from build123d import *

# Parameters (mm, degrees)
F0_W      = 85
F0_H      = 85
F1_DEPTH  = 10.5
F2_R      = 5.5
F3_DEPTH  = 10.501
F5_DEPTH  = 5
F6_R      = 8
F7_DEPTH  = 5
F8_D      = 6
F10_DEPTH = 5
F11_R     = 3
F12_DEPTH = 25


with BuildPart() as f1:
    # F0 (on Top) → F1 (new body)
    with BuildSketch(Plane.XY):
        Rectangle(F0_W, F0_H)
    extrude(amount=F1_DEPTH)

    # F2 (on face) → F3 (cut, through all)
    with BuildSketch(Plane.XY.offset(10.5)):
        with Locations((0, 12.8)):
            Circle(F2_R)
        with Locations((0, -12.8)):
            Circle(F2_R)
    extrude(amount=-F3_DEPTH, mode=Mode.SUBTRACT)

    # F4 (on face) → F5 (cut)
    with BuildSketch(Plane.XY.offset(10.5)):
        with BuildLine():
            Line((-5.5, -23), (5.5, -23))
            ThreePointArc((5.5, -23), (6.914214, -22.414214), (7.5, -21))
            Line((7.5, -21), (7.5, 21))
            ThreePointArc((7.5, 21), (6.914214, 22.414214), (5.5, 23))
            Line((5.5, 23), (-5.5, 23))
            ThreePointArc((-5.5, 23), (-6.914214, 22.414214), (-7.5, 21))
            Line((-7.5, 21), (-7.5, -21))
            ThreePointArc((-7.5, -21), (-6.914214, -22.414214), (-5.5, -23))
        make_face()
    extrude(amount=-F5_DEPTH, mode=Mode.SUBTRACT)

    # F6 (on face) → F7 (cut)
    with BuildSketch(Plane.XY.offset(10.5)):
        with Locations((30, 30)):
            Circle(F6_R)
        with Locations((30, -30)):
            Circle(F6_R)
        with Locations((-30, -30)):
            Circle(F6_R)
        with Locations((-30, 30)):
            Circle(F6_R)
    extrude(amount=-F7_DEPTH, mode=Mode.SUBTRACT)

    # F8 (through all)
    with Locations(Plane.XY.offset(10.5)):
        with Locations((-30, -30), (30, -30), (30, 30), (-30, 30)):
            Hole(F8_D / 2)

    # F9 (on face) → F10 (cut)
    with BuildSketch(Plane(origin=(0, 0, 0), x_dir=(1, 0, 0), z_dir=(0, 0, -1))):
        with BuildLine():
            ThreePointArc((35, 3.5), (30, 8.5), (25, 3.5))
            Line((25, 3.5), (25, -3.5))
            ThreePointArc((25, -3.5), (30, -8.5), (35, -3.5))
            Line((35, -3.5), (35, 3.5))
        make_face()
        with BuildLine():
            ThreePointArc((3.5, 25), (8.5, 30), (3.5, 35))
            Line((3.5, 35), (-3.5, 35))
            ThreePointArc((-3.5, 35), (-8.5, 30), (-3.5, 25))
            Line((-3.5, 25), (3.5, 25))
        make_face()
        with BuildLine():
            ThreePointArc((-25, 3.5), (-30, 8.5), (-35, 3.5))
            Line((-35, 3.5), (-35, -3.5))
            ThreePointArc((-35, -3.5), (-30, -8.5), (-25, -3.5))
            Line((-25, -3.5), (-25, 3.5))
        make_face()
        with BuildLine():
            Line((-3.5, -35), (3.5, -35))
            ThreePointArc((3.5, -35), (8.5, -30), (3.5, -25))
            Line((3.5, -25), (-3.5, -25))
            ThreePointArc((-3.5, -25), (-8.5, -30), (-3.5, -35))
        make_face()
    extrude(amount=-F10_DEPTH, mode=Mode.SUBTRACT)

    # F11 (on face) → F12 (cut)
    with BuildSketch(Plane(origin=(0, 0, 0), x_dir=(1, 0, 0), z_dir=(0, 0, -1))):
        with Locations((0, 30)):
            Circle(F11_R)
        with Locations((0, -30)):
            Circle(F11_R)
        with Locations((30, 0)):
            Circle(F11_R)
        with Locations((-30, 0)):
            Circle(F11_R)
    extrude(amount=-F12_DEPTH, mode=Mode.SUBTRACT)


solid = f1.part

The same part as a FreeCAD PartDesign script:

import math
import FreeCAD as App
import Part
import Sketcher

V = App.Vector

doc = App.newDocument("Part")
body = doc.addObject("PartDesign::Body", "Body")

sketch1 = doc.addObject("Sketcher::SketchObject", "Sketch")
body.addObject(sketch1)
sketch1.AttachmentSupport = (doc.XY_Plane, [""])
sketch1.MapMode = "FlatFace"
sketch1.addGeometry(Part.LineSegment(V(-42.5, 42.5, 0), V(-42.5, -42.5, 0)), False)
sketch1.addGeometry(Part.LineSegment(V(-42.5, -42.5, 0), V(42.5, -42.5, 0)), False)
sketch1.addGeometry(Part.LineSegment(V(42.5, -42.5, 0), V(42.5, 42.5, 0)), False)
sketch1.addGeometry(Part.LineSegment(V(42.5, 42.5, 0), V(-42.5, 42.5, 0)), False)
sketch1.addConstraint(Sketcher.Constraint("Coincident", 0, 2, 1, 1))
sketch1.addConstraint(Sketcher.Constraint("Coincident", 1, 2, 2, 1))
sketch1.addConstraint(Sketcher.Constraint("Coincident", 2, 2, 3, 1))
sketch1.addConstraint(Sketcher.Constraint("Coincident", 3, 2, 0, 1))
sketch1.addConstraint(Sketcher.Constraint("Vertical", 0))
sketch1.addConstraint(Sketcher.Constraint("Horizontal", 1))
sketch1.addConstraint(Sketcher.Constraint("Vertical", 2))
sketch1.addConstraint(Sketcher.Constraint("Horizontal", 3))
sketch1.addConstraint(Sketcher.Constraint("Symmetric", 0, 2, 2, 2, -1, 1))
sketch1.addConstraint(Sketcher.Constraint("Equal", 3, 0))
sketch1.addConstraint(Sketcher.Constraint("DistanceX", 1, 1, 1, 2, 85.0))
pad1 = doc.addObject("PartDesign::Pad", "Pad")
body.addObject(pad1)
pad1.Profile = sketch1
pad1.Length = 10.5

sketch2 = doc.addObject("Sketcher::SketchObject", "Sketch001")
body.addObject(sketch2)
sketch2.AttachmentSupport = (doc.XY_Plane, [""])
sketch2.MapMode = "FlatFace"
sketch2.AttachmentOffset = App.Placement(V(0, 0, 10.5), App.Rotation())
sketch2.addGeometry(Part.Circle(V(0, 12.8, 0), V(0, 0, 1), 5.5), False)
sketch2.addGeometry(Part.Circle(V(0, -12.8, 0), V(0, 0, 1), 5.5), False)
sketch2.addConstraint(Sketcher.Constraint("Equal", 0, 1))
sketch2.addConstraint(Sketcher.Constraint("Symmetric", 0, 3, 1, 3, -1, 1))
sketch2.addConstraint(Sketcher.Constraint("PointOnObject", 0, 3, -2))
sketch2.addConstraint(Sketcher.Constraint("Diameter", 0, 11.0))
sketch2.addConstraint(Sketcher.Constraint("DistanceY", -1, 1, 0, 3, 12.8))
pocket1 = doc.addObject("PartDesign::Pocket", "Pocket")
body.addObject(pocket1)
pocket1.Profile = sketch2
pocket1.Type = "ThroughAll"

sketch3 = doc.addObject("Sketcher::SketchObject", "Sketch002")
body.addObject(sketch3)
sketch3.AttachmentSupport = (doc.XY_Plane, [""])
sketch3.MapMode = "FlatFace"
sketch3.AttachmentOffset = App.Placement(V(0, 0, 10.5), App.Rotation())
sketch3.addGeometry(Part.LineSegment(V(-5.5, -23, 0), V(5.5, -23, 0)), False)
sketch3.addGeometry(Part.ArcOfCircle(Part.Circle(V(5.500001, -21.000001, 0), V(0, 0, 1), 1.999999), math.radians(-90.000043), math.radians(0.000043)), False)
sketch3.addGeometry(Part.LineSegment(V(7.5, -21, 0), V(7.5, 21, 0)), False)
sketch3.addGeometry(Part.ArcOfCircle(Part.Circle(V(5.500001, 21.000001, 0), V(0, 0, 1), 1.999999), math.radians(-0.000043), math.radians(90.000043)), False)
sketch3.addGeometry(Part.LineSegment(V(5.5, 23, 0), V(-5.5, 23, 0)), False)
sketch3.addGeometry(Part.ArcOfCircle(Part.Circle(V(-5.500001, 21.000001, 0), V(0, 0, 1), 1.999999), math.radians(89.999957), math.radians(180.000043)), False)
sketch3.addGeometry(Part.LineSegment(V(-7.5, 21, 0), V(-7.5, -21, 0)), False)
sketch3.addGeometry(Part.ArcOfCircle(Part.Circle(V(-5.500001, -21.000001, 0), V(0, 0, 1), 1.999999), math.radians(179.999957), math.radians(270.000043)), False)
sketch3.addConstraint(Sketcher.Constraint("Tangent", 0, 2, 1, 1))
sketch3.addConstraint(Sketcher.Constraint("Tangent", 1, 2, 2, 1))
sketch3.addConstraint(Sketcher.Constraint("Tangent", 2, 2, 3, 1))
sketch3.addConstraint(Sketcher.Constraint("Tangent", 3, 2, 4, 1))
sketch3.addConstraint(Sketcher.Constraint("Tangent", 4, 2, 5, 1))
sketch3.addConstraint(Sketcher.Constraint("Tangent", 5, 2, 6, 1))
sketch3.addConstraint(Sketcher.Constraint("Tangent", 6, 2, 7, 1))
sketch3.addConstraint(Sketcher.Constraint("Tangent", 7, 2, 0, 1))
sketch3.addConstraint(Sketcher.Constraint("Horizontal", 0))
sketch3.addConstraint(Sketcher.Constraint("Vertical", 2))
sketch3.addConstraint(Sketcher.Constraint("Horizontal", 4))
sketch3.addConstraint(Sketcher.Constraint("Vertical", 6))
sketch3.addConstraint(Sketcher.Constraint("Equal", 1, 3))
sketch3.addConstraint(Sketcher.Constraint("Equal", 3, 5))
sketch3.addConstraint(Sketcher.Constraint("Equal", 5, 7))
sketch3.addConstraint(Sketcher.Constraint("Symmetric", 1, 3, 5, 3, -1, 1))
sketch3.addConstraint(Sketcher.Constraint("Radius", 1, 1.999999))
sketch3.addConstraint(Sketcher.Constraint("DistanceX", 0, 1, 0, 2, 11.0))
sketch3.addConstraint(Sketcher.Constraint("DistanceY", 2, 1, 2, 2, 42.0))
pocket2 = doc.addObject("PartDesign::Pocket", "Pocket001")
body.addObject(pocket2)
pocket2.Profile = sketch3
pocket2.Length = 5

sketch4 = doc.addObject("Sketcher::SketchObject", "Sketch003")
body.addObject(sketch4)
sketch4.AttachmentSupport = (doc.XY_Plane, [""])
sketch4.MapMode = "FlatFace"
sketch4.AttachmentOffset = App.Placement(V(0, 0, 10.5), App.Rotation())
sketch4.addGeometry(Part.Circle(V(30, 30, 0), V(0, 0, 1), 8), False)
sketch4.addGeometry(Part.Circle(V(30, -30, 0), V(0, 0, 1), 8), False)
sketch4.addGeometry(Part.Circle(V(-30, -30, 0), V(0, 0, 1), 8), False)
sketch4.addGeometry(Part.Circle(V(-30, 30, 0), V(0, 0, 1), 8), False)
sketch4.addConstraint(Sketcher.Constraint("Equal", 0, 1))
sketch4.addConstraint(Sketcher.Constraint("Equal", 1, 2))
sketch4.addConstraint(Sketcher.Constraint("Equal", 2, 3))
sketch4.addConstraint(Sketcher.Constraint("Symmetric", 0, 3, 2, 3, -1, 1))
sketch4.addConstraint(Sketcher.Constraint("Symmetric", 1, 3, 3, 3, -1, 1))
sketch4.addConstraint(Sketcher.Constraint("Symmetric", 1, 3, 2, 3, -2))
sketch4.addConstraint(Sketcher.Constraint("Diameter", 0, 16.0))
sketch4.addConstraint(Sketcher.Constraint("DistanceX", -1, 1, 0, 3, 30.0))
sketch4.addConstraint(Sketcher.Constraint("DistanceY", -1, 1, 0, 3, 30.0))
pocket3 = doc.addObject("PartDesign::Pocket", "Pocket002")
body.addObject(pocket3)
pocket3.Profile = sketch4
pocket3.Length = 5

sketch5 = doc.addObject("Sketcher::SketchObject", "Sketch004")
body.addObject(sketch5)
sketch5.AttachmentSupport = (doc.XY_Plane, [""])
sketch5.MapMode = "FlatFace"
sketch5.AttachmentOffset = App.Placement(V(0, 0, 10.5), App.Rotation())
sketch5.addGeometry(Part.Circle(V(-30, -30, 0), V(0, 0, 1), 3), False)
sketch5.addGeometry(Part.Circle(V(30, -30, 0), V(0, 0, 1), 3), False)
sketch5.addGeometry(Part.Circle(V(30, 30, 0), V(0, 0, 1), 3), False)
sketch5.addGeometry(Part.Circle(V(-30, 30, 0), V(0, 0, 1), 3), False)
sketch5.addConstraint(Sketcher.Constraint("Equal", 0, 1))
sketch5.addConstraint(Sketcher.Constraint("Equal", 1, 2))
sketch5.addConstraint(Sketcher.Constraint("Equal", 2, 3))
sketch5.addConstraint(Sketcher.Constraint("Symmetric", 0, 3, 2, 3, -1, 1))
sketch5.addConstraint(Sketcher.Constraint("Symmetric", 1, 3, 3, 3, -1, 1))
sketch5.addConstraint(Sketcher.Constraint("Symmetric", 0, 3, 1, 3, -2))
sketch5.addConstraint(Sketcher.Constraint("Diameter", 0, 6.0))
sketch5.addConstraint(Sketcher.Constraint("DistanceX", 0, 3, -1, 1, 30.0))
sketch5.addConstraint(Sketcher.Constraint("DistanceY", 0, 3, -1, 1, 30.0))
doc.recompute()
hole = doc.addObject("PartDesign::Hole", "Hole")
body.addObject(hole)
hole.Profile = sketch5
hole.ThreadType = "None"
hole.Diameter = 6
hole.DepthType = "ThroughAll"

sketch6 = doc.addObject("Sketcher::SketchObject", "Sketch005")
body.addObject(sketch6)
sketch6.AttachmentSupport = (doc.XY_Plane, [""])
sketch6.MapMode = "FlatFace"
sketch6.addGeometry(Part.ArcOfCircle(Part.Circle(V(30, -3.5, 0), V(0, 0, 1), 5), math.radians(180), math.radians(360)), False)
sketch6.addGeometry(Part.LineSegment(V(25, -3.5, 0), V(25, 3.5, 0)), False)
sketch6.addGeometry(Part.ArcOfCircle(Part.Circle(V(30, 3.5, 0), V(0, 0, 1), 5), math.radians(0), math.radians(180)), False)
sketch6.addGeometry(Part.LineSegment(V(35, 3.5, 0), V(35, -3.5, 0)), False)
sketch6.addGeometry(Part.ArcOfCircle(Part.Circle(V(3.5, -30, 0), V(0, 0, 1), 5), math.radians(-90), math.radians(90)), False)
sketch6.addGeometry(Part.LineSegment(V(3.5, -35, 0), V(-3.5, -35, 0)), False)
sketch6.addGeometry(Part.ArcOfCircle(Part.Circle(V(-3.5, -30, 0), V(0, 0, 1), 5), math.radians(90), math.radians(270)), False)
sketch6.addGeometry(Part.LineSegment(V(-3.5, -25, 0), V(3.5, -25, 0)), False)
sketch6.addGeometry(Part.ArcOfCircle(Part.Circle(V(-30, -3.5, 0), V(0, 0, 1), 5), math.radians(180), math.radians(360)), False)
sketch6.addGeometry(Part.LineSegment(V(-35, -3.5, 0), V(-35, 3.5, 0)), False)
sketch6.addGeometry(Part.ArcOfCircle(Part.Circle(V(-30, 3.5, 0), V(0, 0, 1), 5), math.radians(0), math.radians(180)), False)
sketch6.addGeometry(Part.LineSegment(V(-25, 3.5, 0), V(-25, -3.5, 0)), False)
sketch6.addGeometry(Part.LineSegment(V(-3.5, 35, 0), V(3.5, 35, 0)), False)
sketch6.addGeometry(Part.ArcOfCircle(Part.Circle(V(3.5, 30, 0), V(0, 0, 1), 5), math.radians(-90), math.radians(90)), False)
sketch6.addGeometry(Part.LineSegment(V(3.5, 25, 0), V(-3.5, 25, 0)), False)
sketch6.addGeometry(Part.ArcOfCircle(Part.Circle(V(-3.5, 30, 0), V(0, 0, 1), 5), math.radians(90), math.radians(270)), False)
sketch6.addConstraint(Sketcher.Constraint("Tangent", 0, 1, 1, 1))
sketch6.addConstraint(Sketcher.Constraint("Tangent", 1, 2, 2, 2))
sketch6.addConstraint(Sketcher.Constraint("Tangent", 2, 1, 3, 1))
sketch6.addConstraint(Sketcher.Constraint("Tangent", 3, 2, 0, 2))
sketch6.addConstraint(Sketcher.Constraint("Tangent", 4, 1, 5, 1))
sketch6.addConstraint(Sketcher.Constraint("Tangent", 5, 2, 6, 2))
sketch6.addConstraint(Sketcher.Constraint("Tangent", 6, 1, 7, 1))
sketch6.addConstraint(Sketcher.Constraint("Tangent", 7, 2, 4, 2))
sketch6.addConstraint(Sketcher.Constraint("Tangent", 8, 1, 9, 1))
sketch6.addConstraint(Sketcher.Constraint("Tangent", 9, 2, 10, 2))
sketch6.addConstraint(Sketcher.Constraint("Tangent", 10, 1, 11, 1))
sketch6.addConstraint(Sketcher.Constraint("Tangent", 11, 2, 8, 2))
sketch6.addConstraint(Sketcher.Constraint("Tangent", 12, 2, 13, 2))
sketch6.addConstraint(Sketcher.Constraint("Tangent", 13, 1, 14, 1))
sketch6.addConstraint(Sketcher.Constraint("Tangent", 14, 2, 15, 2))
sketch6.addConstraint(Sketcher.Constraint("Tangent", 15, 1, 12, 1))
sketch6.addConstraint(Sketcher.Constraint("Vertical", 1))
sketch6.addConstraint(Sketcher.Constraint("Vertical", 3))
sketch6.addConstraint(Sketcher.Constraint("Horizontal", 5))
sketch6.addConstraint(Sketcher.Constraint("Horizontal", 7))
sketch6.addConstraint(Sketcher.Constraint("Vertical", 9))
sketch6.addConstraint(Sketcher.Constraint("Vertical", 11))
sketch6.addConstraint(Sketcher.Constraint("Horizontal", 12))
sketch6.addConstraint(Sketcher.Constraint("Horizontal", 14))
sketch6.addConstraint(Sketcher.Constraint("Equal", 2, 4))
sketch6.addConstraint(Sketcher.Constraint("Equal", 6, 8))
sketch6.addConstraint(Sketcher.Constraint("Equal", 10, 13))
sketch6.addConstraint(Sketcher.Constraint("Symmetric", 2, 3, 8, 3, -1, 1))
sketch6.addConstraint(Sketcher.Constraint("Symmetric", 6, 3, 13, 3, -1, 1))
sketch6.addConstraint(Sketcher.Constraint("Horizontal", 0, 3, 8, 3))
sketch6.addConstraint(Sketcher.Constraint("Horizontal", 2, 3, 10, 3))
sketch6.addConstraint(Sketcher.Constraint("Vertical", 4, 3, 13, 3))
sketch6.addConstraint(Sketcher.Constraint("Vertical", 6, 3, 15, 3))
sketch6.addConstraint(Sketcher.Constraint("Equal", 14, 1))
sketch6.addConstraint(Sketcher.Constraint("Radius", 0, 5.0))
sketch6.addConstraint(Sketcher.Constraint("DistanceX", 5, 2, 5, 1, 7.0))
sketch6.addConstraint(Sketcher.Constraint("DistanceX", -1, 1, 0, 3, 30.0))
sketch6.addConstraint(Sketcher.Constraint("DistanceY", 4, 3, -1, 1, 30.0))
pocket4 = doc.addObject("PartDesign::Pocket", "Pocket003")
body.addObject(pocket4)
pocket4.Profile = sketch6
pocket4.Length = 5
pocket4.Reversed = True

sketch7 = doc.addObject("Sketcher::SketchObject", "Sketch006")
body.addObject(sketch7)
sketch7.AttachmentSupport = (doc.XY_Plane, [""])
sketch7.MapMode = "FlatFace"
sketch7.addGeometry(Part.Circle(V(0, -30, 0), V(0, 0, 1), 3), False)
sketch7.addGeometry(Part.Circle(V(0, 30, 0), V(0, 0, 1), 3), False)
sketch7.addGeometry(Part.Circle(V(30, 0, 0), V(0, 0, 1), 3), False)
sketch7.addGeometry(Part.Circle(V(-30, 0, 0), V(0, 0, 1), 3), False)
sketch7.addConstraint(Sketcher.Constraint("Equal", 0, 1))
sketch7.addConstraint(Sketcher.Constraint("Equal", 1, 2))
sketch7.addConstraint(Sketcher.Constraint("Equal", 2, 3))
sketch7.addConstraint(Sketcher.Constraint("Symmetric", 0, 3, 1, 3, -1, 1))
sketch7.addConstraint(Sketcher.Constraint("Symmetric", 2, 3, 3, 3, -1, 1))
sketch7.addConstraint(Sketcher.Constraint("PointOnObject", 0, 3, -2))
sketch7.addConstraint(Sketcher.Constraint("PointOnObject", 2, 3, -1))
sketch7.addConstraint(Sketcher.Constraint("Diameter", 0, 6.0))
sketch7.addConstraint(Sketcher.Constraint("DistanceY", 0, 3, -1, 1, 30.0))
sketch7.addConstraint(Sketcher.Constraint("DistanceX", -1, 1, 2, 3, 30.0))
pocket5 = doc.addObject("PartDesign::Pocket", "Pocket004")
body.addObject(pocket5)
pocket5.Profile = sketch7
pocket5.Length = 25
pocket5.Reversed = True

doc.recompute()
